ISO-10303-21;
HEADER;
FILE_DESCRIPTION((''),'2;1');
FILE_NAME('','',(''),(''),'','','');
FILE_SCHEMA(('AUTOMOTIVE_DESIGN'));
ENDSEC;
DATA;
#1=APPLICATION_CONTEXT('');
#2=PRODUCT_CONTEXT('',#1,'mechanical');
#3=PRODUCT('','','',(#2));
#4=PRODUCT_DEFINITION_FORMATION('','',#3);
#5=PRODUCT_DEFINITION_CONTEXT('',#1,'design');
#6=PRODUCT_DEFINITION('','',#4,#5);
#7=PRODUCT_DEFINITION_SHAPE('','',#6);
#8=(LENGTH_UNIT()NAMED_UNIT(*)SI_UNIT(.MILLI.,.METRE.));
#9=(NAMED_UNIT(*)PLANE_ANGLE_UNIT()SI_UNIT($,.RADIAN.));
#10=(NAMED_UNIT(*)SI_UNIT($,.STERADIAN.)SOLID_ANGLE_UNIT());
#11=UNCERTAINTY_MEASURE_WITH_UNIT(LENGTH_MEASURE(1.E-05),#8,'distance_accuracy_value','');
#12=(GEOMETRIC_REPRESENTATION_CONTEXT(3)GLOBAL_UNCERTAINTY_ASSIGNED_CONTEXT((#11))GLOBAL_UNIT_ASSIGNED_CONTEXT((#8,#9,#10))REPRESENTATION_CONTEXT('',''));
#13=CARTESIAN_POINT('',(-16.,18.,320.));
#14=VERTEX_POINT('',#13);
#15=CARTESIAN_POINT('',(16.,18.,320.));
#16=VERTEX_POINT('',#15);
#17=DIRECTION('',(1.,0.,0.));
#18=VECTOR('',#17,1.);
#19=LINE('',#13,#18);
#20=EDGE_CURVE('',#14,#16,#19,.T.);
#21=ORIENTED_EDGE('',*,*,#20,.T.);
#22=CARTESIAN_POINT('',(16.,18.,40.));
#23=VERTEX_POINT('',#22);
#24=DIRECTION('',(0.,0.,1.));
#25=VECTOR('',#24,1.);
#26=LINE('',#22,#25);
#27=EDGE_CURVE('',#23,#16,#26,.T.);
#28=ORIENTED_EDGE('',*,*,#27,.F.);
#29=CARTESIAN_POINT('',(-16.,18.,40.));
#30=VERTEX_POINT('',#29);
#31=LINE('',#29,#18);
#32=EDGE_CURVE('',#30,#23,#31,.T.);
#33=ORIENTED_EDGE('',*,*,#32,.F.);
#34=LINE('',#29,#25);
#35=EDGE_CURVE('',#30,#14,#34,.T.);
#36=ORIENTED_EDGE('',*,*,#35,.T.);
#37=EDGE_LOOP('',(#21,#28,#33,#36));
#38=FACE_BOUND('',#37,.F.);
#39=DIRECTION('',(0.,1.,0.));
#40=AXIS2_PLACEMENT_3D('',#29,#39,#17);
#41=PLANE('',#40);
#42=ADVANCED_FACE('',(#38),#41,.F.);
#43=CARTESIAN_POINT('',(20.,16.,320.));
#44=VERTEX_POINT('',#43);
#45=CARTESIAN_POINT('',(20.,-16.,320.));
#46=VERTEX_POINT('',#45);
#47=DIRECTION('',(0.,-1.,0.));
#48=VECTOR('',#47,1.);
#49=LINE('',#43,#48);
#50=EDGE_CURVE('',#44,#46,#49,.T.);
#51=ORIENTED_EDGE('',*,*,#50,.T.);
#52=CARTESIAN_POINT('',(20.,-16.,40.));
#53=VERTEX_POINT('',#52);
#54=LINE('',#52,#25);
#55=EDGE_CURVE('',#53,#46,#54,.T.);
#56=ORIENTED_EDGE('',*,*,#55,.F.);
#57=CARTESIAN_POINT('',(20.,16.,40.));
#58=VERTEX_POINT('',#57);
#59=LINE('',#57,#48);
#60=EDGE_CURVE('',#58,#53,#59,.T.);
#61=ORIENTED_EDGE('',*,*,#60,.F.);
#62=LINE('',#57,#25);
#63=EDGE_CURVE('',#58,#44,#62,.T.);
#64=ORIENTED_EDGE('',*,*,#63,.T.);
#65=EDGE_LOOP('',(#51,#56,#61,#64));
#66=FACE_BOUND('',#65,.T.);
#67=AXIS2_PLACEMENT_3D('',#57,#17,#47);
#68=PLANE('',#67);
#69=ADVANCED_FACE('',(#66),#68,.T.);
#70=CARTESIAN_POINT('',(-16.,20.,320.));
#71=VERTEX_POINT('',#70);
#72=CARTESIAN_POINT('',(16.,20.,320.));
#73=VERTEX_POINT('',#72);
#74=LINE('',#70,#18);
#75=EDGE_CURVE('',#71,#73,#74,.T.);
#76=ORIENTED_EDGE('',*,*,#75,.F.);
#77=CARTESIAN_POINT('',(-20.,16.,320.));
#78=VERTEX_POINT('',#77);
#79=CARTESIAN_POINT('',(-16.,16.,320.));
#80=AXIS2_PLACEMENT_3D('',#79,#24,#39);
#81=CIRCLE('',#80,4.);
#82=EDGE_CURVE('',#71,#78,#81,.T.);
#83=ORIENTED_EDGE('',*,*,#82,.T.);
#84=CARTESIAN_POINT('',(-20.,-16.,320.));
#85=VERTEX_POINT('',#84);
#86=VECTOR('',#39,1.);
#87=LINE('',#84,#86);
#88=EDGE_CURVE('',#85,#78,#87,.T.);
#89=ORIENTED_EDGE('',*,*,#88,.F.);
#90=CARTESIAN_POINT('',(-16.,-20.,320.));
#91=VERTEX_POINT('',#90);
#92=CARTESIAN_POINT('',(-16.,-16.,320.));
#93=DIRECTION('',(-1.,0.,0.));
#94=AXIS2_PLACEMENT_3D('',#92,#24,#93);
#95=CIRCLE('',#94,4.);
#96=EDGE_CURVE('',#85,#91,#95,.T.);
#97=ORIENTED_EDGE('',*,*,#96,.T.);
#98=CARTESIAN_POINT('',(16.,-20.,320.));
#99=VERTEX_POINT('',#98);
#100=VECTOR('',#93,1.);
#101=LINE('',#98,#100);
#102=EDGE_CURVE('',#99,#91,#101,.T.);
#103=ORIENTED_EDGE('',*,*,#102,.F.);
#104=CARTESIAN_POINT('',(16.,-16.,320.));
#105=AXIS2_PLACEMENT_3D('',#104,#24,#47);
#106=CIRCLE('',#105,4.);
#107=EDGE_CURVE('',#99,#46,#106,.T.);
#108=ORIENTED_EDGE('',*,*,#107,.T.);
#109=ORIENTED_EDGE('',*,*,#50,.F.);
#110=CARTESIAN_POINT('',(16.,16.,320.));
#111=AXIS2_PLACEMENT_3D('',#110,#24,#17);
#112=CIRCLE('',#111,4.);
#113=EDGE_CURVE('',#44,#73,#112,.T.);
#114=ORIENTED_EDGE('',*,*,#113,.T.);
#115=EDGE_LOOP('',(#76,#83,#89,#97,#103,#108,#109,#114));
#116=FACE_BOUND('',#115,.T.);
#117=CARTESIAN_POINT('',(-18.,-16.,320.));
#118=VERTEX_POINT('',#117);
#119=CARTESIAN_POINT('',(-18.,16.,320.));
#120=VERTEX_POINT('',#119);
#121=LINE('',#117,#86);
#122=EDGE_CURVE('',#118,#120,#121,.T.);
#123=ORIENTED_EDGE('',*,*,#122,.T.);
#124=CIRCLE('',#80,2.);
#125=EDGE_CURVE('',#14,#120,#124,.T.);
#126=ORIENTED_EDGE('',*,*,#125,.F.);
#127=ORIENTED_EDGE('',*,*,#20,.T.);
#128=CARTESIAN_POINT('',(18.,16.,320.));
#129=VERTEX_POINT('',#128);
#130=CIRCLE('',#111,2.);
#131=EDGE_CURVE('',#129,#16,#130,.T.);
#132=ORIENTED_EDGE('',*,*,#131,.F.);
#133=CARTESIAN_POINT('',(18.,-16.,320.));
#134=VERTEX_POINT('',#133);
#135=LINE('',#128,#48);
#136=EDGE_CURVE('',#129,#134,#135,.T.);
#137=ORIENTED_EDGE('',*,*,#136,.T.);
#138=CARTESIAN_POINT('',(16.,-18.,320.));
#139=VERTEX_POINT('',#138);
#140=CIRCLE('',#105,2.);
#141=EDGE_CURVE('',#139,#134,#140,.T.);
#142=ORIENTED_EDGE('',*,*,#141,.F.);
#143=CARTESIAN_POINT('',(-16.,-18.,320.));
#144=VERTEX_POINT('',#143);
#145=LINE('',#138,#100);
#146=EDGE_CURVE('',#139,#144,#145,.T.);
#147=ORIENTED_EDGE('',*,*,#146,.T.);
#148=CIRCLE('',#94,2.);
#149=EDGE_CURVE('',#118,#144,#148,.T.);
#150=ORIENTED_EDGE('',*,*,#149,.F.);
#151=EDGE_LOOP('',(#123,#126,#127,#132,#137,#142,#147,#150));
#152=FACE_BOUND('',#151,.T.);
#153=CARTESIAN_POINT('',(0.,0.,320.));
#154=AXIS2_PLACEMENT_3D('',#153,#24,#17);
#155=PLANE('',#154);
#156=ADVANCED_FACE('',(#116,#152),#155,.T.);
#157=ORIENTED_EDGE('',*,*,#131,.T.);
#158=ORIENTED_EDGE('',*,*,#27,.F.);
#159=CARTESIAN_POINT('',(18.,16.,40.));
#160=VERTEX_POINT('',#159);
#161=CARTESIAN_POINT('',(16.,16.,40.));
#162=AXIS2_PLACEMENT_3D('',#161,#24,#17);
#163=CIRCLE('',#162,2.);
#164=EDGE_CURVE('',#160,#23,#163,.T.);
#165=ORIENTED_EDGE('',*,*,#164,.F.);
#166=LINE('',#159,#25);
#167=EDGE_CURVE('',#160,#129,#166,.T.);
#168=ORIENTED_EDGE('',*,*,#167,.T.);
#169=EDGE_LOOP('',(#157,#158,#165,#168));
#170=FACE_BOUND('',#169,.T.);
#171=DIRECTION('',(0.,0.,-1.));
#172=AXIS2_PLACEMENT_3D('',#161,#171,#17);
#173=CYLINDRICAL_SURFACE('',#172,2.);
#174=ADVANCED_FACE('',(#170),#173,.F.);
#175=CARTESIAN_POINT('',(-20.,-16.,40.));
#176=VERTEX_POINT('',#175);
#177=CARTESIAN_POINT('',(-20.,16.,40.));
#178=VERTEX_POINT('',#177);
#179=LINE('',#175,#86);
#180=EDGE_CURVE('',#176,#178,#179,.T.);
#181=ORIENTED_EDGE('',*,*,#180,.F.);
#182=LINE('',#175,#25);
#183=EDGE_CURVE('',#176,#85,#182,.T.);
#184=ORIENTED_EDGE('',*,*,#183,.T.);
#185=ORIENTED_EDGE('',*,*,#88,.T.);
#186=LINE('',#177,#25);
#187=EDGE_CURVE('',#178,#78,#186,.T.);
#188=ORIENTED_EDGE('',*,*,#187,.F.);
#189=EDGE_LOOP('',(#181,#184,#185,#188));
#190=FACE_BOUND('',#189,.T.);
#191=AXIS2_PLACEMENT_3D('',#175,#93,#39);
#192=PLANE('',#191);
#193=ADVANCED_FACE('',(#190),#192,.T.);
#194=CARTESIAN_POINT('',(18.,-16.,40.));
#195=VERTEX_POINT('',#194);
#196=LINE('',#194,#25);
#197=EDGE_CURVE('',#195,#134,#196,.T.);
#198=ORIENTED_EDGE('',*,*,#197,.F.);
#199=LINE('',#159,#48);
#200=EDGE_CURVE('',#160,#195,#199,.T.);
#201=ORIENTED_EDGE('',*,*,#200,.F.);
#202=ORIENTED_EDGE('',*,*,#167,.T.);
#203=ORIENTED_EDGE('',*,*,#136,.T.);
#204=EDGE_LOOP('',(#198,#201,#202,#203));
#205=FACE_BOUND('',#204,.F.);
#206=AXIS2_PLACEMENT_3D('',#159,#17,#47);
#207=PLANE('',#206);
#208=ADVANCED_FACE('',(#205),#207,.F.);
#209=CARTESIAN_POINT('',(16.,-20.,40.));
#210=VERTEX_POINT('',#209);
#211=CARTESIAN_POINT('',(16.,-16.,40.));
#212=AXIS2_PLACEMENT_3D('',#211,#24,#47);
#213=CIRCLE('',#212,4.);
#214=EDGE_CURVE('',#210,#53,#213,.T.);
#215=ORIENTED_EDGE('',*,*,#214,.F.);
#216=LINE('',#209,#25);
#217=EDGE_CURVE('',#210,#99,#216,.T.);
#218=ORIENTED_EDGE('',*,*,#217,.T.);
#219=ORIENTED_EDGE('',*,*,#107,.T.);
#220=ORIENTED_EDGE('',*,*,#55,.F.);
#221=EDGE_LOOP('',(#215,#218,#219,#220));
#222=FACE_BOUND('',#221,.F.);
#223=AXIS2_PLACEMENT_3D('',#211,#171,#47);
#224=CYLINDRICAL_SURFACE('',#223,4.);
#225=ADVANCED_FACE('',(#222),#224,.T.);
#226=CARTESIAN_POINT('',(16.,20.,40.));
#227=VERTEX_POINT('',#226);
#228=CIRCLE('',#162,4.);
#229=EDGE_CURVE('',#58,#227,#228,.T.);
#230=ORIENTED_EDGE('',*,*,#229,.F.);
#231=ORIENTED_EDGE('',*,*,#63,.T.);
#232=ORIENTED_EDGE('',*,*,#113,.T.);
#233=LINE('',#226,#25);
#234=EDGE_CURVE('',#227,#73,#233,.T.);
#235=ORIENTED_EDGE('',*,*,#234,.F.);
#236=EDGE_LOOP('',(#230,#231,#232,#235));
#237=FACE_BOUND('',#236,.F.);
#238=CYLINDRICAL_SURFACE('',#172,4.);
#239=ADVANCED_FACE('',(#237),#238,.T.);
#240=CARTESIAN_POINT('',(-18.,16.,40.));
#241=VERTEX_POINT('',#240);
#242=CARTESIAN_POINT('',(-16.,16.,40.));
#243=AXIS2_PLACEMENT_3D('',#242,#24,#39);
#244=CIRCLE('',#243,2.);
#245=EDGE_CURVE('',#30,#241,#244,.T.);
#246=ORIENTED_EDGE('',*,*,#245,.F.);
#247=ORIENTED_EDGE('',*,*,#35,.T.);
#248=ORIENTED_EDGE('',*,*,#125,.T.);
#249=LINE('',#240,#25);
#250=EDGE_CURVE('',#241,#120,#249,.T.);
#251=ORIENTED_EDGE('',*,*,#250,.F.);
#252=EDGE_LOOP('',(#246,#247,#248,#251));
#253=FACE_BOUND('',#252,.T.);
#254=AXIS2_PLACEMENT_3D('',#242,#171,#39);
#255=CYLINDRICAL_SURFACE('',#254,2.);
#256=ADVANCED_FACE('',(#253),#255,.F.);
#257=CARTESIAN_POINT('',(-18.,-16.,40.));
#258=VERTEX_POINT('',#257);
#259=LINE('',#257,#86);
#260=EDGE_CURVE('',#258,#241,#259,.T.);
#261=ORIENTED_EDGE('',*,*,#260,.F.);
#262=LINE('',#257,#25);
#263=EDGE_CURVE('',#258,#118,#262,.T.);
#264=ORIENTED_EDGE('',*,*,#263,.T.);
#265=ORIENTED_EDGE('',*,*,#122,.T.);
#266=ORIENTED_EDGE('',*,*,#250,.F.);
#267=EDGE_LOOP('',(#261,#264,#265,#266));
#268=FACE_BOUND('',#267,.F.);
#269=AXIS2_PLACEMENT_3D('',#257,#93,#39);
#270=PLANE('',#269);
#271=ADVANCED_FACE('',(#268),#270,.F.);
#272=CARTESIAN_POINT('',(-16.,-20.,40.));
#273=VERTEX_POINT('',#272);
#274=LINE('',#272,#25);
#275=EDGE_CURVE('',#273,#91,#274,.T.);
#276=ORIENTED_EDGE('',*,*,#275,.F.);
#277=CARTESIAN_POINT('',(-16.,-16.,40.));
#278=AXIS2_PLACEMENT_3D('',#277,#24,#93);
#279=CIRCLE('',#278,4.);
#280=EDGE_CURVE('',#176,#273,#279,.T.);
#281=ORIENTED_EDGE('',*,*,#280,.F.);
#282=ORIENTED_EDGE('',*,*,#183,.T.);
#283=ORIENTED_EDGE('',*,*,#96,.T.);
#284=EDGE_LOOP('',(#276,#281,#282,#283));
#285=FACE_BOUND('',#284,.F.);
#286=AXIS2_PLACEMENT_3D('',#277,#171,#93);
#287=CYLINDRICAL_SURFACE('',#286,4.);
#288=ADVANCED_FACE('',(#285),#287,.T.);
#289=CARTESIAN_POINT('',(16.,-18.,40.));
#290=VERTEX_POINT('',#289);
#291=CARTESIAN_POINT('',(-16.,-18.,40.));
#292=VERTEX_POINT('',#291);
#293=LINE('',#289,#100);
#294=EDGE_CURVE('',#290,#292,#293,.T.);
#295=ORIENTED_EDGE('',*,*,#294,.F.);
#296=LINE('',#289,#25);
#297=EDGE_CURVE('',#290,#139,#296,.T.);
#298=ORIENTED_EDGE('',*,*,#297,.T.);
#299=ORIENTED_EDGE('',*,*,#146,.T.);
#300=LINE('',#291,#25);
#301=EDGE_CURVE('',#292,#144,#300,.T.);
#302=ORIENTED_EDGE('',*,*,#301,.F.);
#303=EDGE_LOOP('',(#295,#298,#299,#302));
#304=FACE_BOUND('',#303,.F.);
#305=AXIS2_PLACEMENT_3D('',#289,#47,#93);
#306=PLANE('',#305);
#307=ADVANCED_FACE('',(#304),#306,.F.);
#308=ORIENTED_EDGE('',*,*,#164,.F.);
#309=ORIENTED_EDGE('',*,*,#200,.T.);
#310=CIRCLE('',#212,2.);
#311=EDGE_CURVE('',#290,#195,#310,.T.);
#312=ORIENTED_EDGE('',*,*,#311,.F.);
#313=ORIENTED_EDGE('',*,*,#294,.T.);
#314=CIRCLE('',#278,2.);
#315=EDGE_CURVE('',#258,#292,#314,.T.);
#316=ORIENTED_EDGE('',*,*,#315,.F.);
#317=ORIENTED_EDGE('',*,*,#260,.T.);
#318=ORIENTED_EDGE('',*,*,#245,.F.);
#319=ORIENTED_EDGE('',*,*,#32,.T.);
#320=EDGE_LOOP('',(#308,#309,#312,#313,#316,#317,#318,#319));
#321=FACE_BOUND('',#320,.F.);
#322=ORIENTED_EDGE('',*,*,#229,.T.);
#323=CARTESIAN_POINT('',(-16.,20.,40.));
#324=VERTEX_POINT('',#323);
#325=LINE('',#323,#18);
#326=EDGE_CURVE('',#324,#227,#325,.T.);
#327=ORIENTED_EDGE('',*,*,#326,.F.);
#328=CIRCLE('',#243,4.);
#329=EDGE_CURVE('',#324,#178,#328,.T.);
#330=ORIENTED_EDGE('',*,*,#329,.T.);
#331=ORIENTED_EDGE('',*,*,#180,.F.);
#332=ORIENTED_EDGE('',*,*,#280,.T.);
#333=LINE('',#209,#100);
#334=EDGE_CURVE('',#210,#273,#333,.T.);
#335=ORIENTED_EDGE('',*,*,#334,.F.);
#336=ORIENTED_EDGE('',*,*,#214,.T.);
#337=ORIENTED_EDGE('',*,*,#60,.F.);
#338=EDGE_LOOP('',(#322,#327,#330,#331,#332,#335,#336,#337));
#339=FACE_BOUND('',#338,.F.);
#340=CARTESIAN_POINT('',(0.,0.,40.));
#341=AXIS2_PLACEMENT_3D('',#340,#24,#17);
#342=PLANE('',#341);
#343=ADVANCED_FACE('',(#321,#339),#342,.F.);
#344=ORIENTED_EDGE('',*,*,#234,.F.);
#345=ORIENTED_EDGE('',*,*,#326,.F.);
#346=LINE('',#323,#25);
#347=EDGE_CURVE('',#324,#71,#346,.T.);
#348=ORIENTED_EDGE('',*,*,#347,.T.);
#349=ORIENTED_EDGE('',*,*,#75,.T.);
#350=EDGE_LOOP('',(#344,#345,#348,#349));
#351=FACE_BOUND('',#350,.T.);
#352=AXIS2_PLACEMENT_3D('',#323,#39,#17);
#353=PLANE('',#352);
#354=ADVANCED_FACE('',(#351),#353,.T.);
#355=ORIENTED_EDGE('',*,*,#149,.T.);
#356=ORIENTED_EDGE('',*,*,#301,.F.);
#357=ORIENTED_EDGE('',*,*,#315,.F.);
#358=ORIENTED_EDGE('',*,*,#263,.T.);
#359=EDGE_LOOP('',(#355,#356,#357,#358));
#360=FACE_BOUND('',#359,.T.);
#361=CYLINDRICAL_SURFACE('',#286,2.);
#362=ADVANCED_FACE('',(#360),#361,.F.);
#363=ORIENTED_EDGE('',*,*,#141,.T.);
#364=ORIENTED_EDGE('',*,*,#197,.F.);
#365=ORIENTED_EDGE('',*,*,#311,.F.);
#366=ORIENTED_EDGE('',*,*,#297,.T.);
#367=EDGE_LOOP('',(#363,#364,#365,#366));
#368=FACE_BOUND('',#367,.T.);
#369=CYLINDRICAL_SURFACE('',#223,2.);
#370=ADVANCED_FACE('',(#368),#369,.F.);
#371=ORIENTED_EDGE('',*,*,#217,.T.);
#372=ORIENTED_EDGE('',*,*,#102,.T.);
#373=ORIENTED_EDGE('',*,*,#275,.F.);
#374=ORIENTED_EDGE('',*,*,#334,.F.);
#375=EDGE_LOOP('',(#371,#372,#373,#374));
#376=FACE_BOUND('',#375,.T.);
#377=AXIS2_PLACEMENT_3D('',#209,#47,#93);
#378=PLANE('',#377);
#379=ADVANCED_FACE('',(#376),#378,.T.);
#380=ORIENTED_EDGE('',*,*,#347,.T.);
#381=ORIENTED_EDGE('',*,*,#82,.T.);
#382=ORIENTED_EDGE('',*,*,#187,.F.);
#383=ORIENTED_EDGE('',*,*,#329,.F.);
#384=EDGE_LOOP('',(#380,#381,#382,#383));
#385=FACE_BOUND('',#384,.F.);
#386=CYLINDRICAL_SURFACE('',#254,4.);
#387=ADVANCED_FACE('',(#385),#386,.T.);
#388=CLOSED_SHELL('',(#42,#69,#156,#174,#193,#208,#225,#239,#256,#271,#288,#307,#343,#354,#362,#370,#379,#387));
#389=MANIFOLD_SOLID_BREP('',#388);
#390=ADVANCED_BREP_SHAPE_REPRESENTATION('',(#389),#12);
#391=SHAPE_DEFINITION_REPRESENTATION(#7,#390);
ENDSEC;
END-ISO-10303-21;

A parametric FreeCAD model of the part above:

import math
import FreeCAD as App
import Part
import Sketcher

doc = App.newDocument("Part")
body = doc.addObject("PartDesign::Body", "Body")

sketch1 = body.newObject("Sketcher::SketchObject", "Sketch")
sketch1.AttachmentSupport = (doc.getObject("XY_Plane"), [""])
sketch1.MapMode = "FlatFace"
sketch1.AttachmentOffset = App.Placement(App.Vector(0, 0, 40), App.Rotation())
sketch1.addGeometry([
    Part.LineSegment(App.Vector(-20, 16, 0), App.Vector(-20, -16, 0)),
    Part.ArcOfCircle(Part.Circle(App.Vector(-16, -16, 0), App.Vector(0, 0, 1), 4), math.radians(180), math.radians(270)),
    Part.LineSegment(App.Vector(-16, -20, 0), App.Vector(16, -20, 0)),
    Part.ArcOfCircle(Part.Circle(App.Vector(16, -16, 0), App.Vector(0, 0, 1), 4), math.radians(-90), math.radians(0)),
    Part.LineSegment(App.Vector(20, -16, 0), App.Vector(20, 16, 0)),
    Part.ArcOfCircle(Part.Circle(App.Vector(16, 16, 0), App.Vector(0, 0, 1), 4), math.radians(0), math.radians(90)),
    Part.LineSegment(App.Vector(16, 20, 0), App.Vector(-16, 20, 0)),
    Part.ArcOfCircle(Part.Circle(App.Vector(-16, 16, 0), App.Vector(0, 0, 1), 4), math.radians(90), math.radians(180)),
    Part.ArcOfCircle(Part.Circle(App.Vector(-16, 16, 0), App.Vector(0, 0, 1), 2), math.radians(90), math.radians(180)),
    Part.LineSegment(App.Vector(-16, 18, 0), App.Vector(16, 18, 0)),
    Part.ArcOfCircle(Part.Circle(App.Vector(16, 16, 0), App.Vector(0, 0, 1), 2), math.radians(0), math.radians(90)),
    Part.LineSegment(App.Vector(18, 16, 0), App.Vector(18, -16, 0)),
    Part.ArcOfCircle(Part.Circle(App.Vector(16, -16, 0), App.Vector(0, 0, 1), 2), math.radians(-90), math.radians(0)),
    Part.LineSegment(App.Vector(16, -18, 0), App.Vector(-16, -18, 0)),
    Part.ArcOfCircle(Part.Circle(App.Vector(-16, -16, 0), App.Vector(0, 0, 1), 2), math.radians(180), math.radians(270)),
    Part.LineSegment(App.Vector(-18, -16, 0), App.Vector(-18, 16, 0)),
], False)
sketch1.addConstraint([
    Sketcher.Constraint("Tangent", 0, 2, 1, 1),
    Sketcher.Constraint("Tangent", 1, 2, 2, 1),
    Sketcher.Constraint("Tangent", 2, 2, 3, 1),
    Sketcher.Constraint("Tangent", 3, 2, 4, 1),
    Sketcher.Constraint("Tangent", 4, 2, 5, 1),
    Sketcher.Constraint("Tangent", 5, 2, 6, 1),
    Sketcher.Constraint("Tangent", 6, 2, 7, 1),
    Sketcher.Constraint("Tangent", 7, 2, 0, 1),
    Sketcher.Constraint("Tangent", 8, 1, 9, 1),
    Sketcher.Constraint("Tangent", 9, 2, 10, 2),
    Sketcher.Constraint("Tangent", 10, 1, 11, 1),
    Sketcher.Constraint("Tangent", 11, 2, 12, 2),
    Sketcher.Constraint("Tangent", 12, 1, 13, 1),
    Sketcher.Constraint("Tangent", 13, 2, 14, 2),
    Sketcher.Constraint("Tangent", 14, 1, 15, 1),
    Sketcher.Constraint("Tangent", 15, 2, 8, 2),
    Sketcher.Constraint("Vertical", 0),
    Sketcher.Constraint("Horizontal", 2),
    Sketcher.Constraint("Vertical", 4),
    Sketcher.Constraint("Horizontal", 6),
    Sketcher.Constraint("Horizontal", 9),
    Sketcher.Constraint("Vertical", 11),
    Sketcher.Constraint("Horizontal", 13),
    Sketcher.Constraint("Vertical", 15),
    Sketcher.Constraint("Coincident", 8, 3, 7, 3),
    Sketcher.Constraint("Coincident", 10, 3, 5, 3),
    Sketcher.Constraint("Coincident", 12, 3, 3, 3),
    Sketcher.Constraint("Equal", 1, 3),
    Sketcher.Constraint("Equal", 3, 5),
    Sketcher.Constraint("Equal", 5, 7),
    Sketcher.Constraint("Equal", 12, 14),
    Sketcher.Constraint("Symmetric", 1, 3, 5, 3, -1, 1),
    Sketcher.Constraint("Equal", 13, 0),
    Sketcher.Constraint("Radius", 1, 4.0),
    Sketcher.Constraint("Radius", 8, 2.0),
    Sketcher.Constraint("DistanceX", 0, 2, -1, 1, 20.0),
])
pad1 = body.newObject("PartDesign::Pad", "Pad")
pad1.Profile = sketch1
pad1.Length = 280

doc.recompute()
